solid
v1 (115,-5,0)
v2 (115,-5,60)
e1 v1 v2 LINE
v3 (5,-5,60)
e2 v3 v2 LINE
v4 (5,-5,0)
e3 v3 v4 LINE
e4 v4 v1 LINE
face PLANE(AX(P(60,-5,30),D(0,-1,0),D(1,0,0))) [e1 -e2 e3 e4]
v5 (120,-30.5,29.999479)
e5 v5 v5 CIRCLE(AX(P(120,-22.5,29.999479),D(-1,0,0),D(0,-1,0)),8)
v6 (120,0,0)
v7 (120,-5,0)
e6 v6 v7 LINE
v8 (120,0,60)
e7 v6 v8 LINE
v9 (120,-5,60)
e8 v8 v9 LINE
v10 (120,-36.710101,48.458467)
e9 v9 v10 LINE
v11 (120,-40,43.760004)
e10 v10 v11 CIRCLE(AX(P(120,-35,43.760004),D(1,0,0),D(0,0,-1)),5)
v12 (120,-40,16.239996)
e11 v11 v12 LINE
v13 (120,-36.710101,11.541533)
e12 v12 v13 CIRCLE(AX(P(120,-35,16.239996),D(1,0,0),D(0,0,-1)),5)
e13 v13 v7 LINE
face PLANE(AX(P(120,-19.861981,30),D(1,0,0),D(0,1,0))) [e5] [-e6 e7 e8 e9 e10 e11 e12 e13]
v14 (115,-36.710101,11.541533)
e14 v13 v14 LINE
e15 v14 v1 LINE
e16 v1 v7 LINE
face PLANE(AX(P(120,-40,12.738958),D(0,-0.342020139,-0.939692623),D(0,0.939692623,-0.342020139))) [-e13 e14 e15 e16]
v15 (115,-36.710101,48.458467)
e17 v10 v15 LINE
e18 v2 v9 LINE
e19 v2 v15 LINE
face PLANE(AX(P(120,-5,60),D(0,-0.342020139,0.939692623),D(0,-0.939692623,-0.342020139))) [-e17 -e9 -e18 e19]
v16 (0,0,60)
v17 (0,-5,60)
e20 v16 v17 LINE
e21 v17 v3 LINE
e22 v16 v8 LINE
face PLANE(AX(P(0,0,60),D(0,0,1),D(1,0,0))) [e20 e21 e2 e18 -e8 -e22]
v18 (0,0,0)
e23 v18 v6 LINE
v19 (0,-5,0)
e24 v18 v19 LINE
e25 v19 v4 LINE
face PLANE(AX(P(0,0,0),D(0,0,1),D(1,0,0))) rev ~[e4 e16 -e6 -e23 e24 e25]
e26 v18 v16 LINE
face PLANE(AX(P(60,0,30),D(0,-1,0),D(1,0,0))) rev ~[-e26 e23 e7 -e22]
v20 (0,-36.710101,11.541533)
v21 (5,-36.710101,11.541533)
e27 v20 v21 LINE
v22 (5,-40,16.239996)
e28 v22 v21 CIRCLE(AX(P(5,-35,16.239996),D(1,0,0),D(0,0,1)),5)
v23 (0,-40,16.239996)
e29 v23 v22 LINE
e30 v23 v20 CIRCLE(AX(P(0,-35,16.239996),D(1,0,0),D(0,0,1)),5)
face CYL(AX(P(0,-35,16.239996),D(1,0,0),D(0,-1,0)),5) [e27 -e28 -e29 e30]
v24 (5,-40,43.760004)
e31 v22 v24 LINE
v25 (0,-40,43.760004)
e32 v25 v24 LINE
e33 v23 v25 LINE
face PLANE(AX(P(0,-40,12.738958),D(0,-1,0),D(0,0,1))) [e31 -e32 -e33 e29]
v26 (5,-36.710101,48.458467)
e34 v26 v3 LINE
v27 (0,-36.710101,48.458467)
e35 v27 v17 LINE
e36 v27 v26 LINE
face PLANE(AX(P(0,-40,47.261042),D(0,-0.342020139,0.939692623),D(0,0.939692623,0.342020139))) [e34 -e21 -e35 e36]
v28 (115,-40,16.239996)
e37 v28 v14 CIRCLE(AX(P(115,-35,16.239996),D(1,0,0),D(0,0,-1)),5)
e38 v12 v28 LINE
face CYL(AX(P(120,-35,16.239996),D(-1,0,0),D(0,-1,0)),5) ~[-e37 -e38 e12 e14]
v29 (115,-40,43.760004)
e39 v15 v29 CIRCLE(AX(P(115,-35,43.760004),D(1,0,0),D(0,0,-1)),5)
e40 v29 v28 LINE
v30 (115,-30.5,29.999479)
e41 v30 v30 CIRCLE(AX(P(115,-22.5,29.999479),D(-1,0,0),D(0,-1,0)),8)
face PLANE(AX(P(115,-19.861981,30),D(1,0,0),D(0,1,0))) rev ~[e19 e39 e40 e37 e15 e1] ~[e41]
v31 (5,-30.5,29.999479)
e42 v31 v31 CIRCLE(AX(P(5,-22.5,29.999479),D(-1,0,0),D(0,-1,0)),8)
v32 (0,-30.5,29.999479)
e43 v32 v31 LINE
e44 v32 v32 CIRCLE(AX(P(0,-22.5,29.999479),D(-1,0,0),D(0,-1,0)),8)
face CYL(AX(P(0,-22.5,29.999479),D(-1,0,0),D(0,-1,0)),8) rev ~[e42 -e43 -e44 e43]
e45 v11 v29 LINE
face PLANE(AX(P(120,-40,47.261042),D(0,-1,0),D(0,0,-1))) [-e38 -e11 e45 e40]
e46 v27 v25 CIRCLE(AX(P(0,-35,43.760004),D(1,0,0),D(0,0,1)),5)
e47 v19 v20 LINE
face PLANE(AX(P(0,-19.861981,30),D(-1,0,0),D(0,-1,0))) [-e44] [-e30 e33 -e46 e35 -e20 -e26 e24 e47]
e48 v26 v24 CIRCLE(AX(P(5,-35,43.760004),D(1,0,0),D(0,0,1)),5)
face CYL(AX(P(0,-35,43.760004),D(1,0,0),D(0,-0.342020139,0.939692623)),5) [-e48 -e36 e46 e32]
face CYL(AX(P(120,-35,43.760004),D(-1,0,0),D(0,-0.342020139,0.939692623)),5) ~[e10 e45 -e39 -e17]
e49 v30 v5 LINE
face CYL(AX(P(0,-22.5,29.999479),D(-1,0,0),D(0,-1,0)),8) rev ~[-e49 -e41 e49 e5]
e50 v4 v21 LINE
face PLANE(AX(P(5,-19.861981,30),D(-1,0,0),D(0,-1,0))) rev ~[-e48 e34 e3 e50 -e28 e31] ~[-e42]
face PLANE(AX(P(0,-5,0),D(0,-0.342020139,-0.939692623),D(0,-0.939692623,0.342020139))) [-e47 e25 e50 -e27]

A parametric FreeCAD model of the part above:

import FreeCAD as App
import Part
import Sketcher
from FreeCAD import Vector
Q = App.Units.Quantity


def edges_at(feature, points):
    """Names of the edges that pass closest to the given points."""
    edges = feature.Shape.Edges
    near = lambda p: min(range(len(edges)), key=lambda i: edges[i].distToShape(Part.Vertex(*p))[0])
    return sorted({f"Edge{near(p) + 1}" for p in points})

doc = App.newDocument("Part")
body = doc.addObject("PartDesign::Body", "Body")

sketch1 = body.newObject("Sketcher::SketchObject", "Sketch")
sketch1.AttachmentSupport = (doc.getObject("XZ_Plane"), [""])
sketch1.MapMode = "FlatFace"
sketch1.addGeometry([
    Part.LineSegment(Vector(0, 60, 0), Vector(0, 0, 0)),
    Part.LineSegment(Vector(0, 0, 0), Vector(120, 0, 0)),
    Part.LineSegment(Vector(120, 0, 0), Vector(120, 60, 0)),
    Part.LineSegment(Vector(120, 60, 0), Vector(0, 60, 0)),
], False)
sketch1.addConstraint([
    Sketcher.Constraint("Coincident", 0, 2, 1, 1),
    Sketcher.Constraint("Coincident", 1, 2, 2, 1),
    Sketcher.Constraint("Coincident", 2, 2, 3, 1),
    Sketcher.Constraint("Coincident", 3, 2, 0, 1),
    Sketcher.Constraint("Vertical", 0),
    Sketcher.Constraint("Horizontal", 1),
    Sketcher.Constraint("Vertical", 2),
    Sketcher.Constraint("Horizontal", 3),
    Sketcher.Constraint("Coincident", 0, 2, -1, 1),
    Sketcher.Constraint("DistanceX", 1, 1, 1, 2, 120.0),
    Sketcher.Constraint("DistanceY", 0, 2, 0, 1, 60.0),
])
pad1 = body.newObject("PartDesign::Pad", "Pad")
pad1.Profile = sketch1
pad1.Length = 5

sketch2 = body.newObject("Sketcher::SketchObject", "Sketch001")
sketch2.AttachmentSupport = (doc.getObject("YZ_Plane"), [""])
sketch2.MapMode = "FlatFace"
sketch2.addGeometry([
    Part.LineSegment(Vector(-40, 47, 0), Vector(-5, 60, 0)),
    Part.LineSegment(Vector(-5, 60, 0), Vector(-5, 0, 0)),
    Part.LineSegment(Vector(-5, 0, 0), Vector(-40, 13, 0)),
    Part.LineSegment(Vector(-40, 13, 0), Vector(-40, 47, 0)),
], False)
sketch2.addConstraint([
    Sketcher.Constraint("Coincident", 0, 2, 1, 1),
    Sketcher.Constraint("Coincident", 1, 2, 2, 1),
    Sketcher.Constraint("Coincident", 2, 2, 3, 1),
    Sketcher.Constraint("Coincident", 3, 2, 0, 1),
    Sketcher.Constraint("Vertical", 1),
    Sketcher.Constraint("Vertical", 3),
    Sketcher.Constraint("PointOnObject", 1, 2, -1),
    Sketcher.Constraint("Equal", 0, 2),
    Sketcher.Constraint("DistanceY", 1, 2, 1, 1, 60.0),
    Sketcher.Constraint("Angle", 0, Q("20 deg")),
    Sketcher.Constraint("DistanceX", 0, 2, -1, 1, 5.0),
    Sketcher.Constraint("DistanceX", 2, 2, -1, 1, 40.0),
])
pad2 = body.newObject("PartDesign::Pad", "Pad001")
pad2.Profile = sketch2
pad2.Length = 5

sketch3 = body.newObject("Sketcher::SketchObject", "Sketch002")
sketch3.AttachmentSupport = (doc.getObject("YZ_Plane"), [""])
sketch3.MapMode = "FlatFace"
sketch3.AttachmentOffset = App.Placement(Vector(0, 0, 120), App.Rotation())
sketch3.addGeometry([
    Part.LineSegment(Vector(-5, 0, 0), Vector(-5, 60, 0)),
    Part.LineSegment(Vector(-5, 60, 0), Vector(-40, 47, 0)),
    Part.LineSegment(Vector(-40, 47, 0), Vector(-40, 13, 0)),
    Part.LineSegment(Vector(-40, 13, 0), Vector(-5, 0, 0)),
], False)
sketch3.addConstraint([
    Sketcher.Constraint("Coincident", 0, 2, 1, 1),
    Sketcher.Constraint("Coincident", 1, 2, 2, 1),
    Sketcher.Constraint("Coincident", 2, 2, 3, 1),
    Sketcher.Constraint("Coincident", 3, 2, 0, 1),
    Sketcher.Constraint("Vertical", 0),
    Sketcher.Constraint("Vertical", 2),
    Sketcher.Constraint("PointOnObject", 3, 2, -1),
    Sketcher.Constraint("Equal", 1, 3),
    Sketcher.Constraint("DistanceY", 0, 1, 0, 2, 60.0),
    Sketcher.Constraint("Angle", 1, Q("-160 deg")),
    Sketcher.Constraint("DistanceX", 0, 2, -1, 1, 5.0),
    Sketcher.Constraint("DistanceX", 1, 2, -1, 1, 40.0),
])
pad3 = body.newObject("PartDesign::Pad", "Pad002")
pad3.Profile = sketch3
pad3.Length = 5
pad3.Reversed = True

sketch4 = body.newObject("Sketcher::SketchObject", "Sketch003")
sketch4.AttachmentSupport = (doc.getObject("YZ_Plane"), [""])
sketch4.MapMode = "FlatFace"
sketch4.addGeometry(Part.Circle(Vector(-22, 30, 0), Vector(0, 0, 1), 8), False)
sketch4.addConstraint([
    Sketcher.Constraint("Diameter", 0, 16.0),
    Sketcher.Constraint("DistanceX", 0, 3, -1, 1, 22.5),
    Sketcher.Constraint("DistanceY", -1, 1, 0, 3, 29.999479),
])
pocket1 = body.newObject("PartDesign::Pocket", "Pocket")
pocket1.Profile = sketch4
pocket1.Length = 146
pocket1.Reversed = True
doc.recompute()

fillet = body.newObject("PartDesign::Fillet", "Fillet")
fillet.Base = (pocket1, edges_at(pocket1, [
    (2.5, -40, 47.261),
    (2.5, -40, 12.739),
    (117.5, -40, 47.261),
    (117.5, -40, 12.739),
]))
fillet.Radius = 5

doc.recompute()
